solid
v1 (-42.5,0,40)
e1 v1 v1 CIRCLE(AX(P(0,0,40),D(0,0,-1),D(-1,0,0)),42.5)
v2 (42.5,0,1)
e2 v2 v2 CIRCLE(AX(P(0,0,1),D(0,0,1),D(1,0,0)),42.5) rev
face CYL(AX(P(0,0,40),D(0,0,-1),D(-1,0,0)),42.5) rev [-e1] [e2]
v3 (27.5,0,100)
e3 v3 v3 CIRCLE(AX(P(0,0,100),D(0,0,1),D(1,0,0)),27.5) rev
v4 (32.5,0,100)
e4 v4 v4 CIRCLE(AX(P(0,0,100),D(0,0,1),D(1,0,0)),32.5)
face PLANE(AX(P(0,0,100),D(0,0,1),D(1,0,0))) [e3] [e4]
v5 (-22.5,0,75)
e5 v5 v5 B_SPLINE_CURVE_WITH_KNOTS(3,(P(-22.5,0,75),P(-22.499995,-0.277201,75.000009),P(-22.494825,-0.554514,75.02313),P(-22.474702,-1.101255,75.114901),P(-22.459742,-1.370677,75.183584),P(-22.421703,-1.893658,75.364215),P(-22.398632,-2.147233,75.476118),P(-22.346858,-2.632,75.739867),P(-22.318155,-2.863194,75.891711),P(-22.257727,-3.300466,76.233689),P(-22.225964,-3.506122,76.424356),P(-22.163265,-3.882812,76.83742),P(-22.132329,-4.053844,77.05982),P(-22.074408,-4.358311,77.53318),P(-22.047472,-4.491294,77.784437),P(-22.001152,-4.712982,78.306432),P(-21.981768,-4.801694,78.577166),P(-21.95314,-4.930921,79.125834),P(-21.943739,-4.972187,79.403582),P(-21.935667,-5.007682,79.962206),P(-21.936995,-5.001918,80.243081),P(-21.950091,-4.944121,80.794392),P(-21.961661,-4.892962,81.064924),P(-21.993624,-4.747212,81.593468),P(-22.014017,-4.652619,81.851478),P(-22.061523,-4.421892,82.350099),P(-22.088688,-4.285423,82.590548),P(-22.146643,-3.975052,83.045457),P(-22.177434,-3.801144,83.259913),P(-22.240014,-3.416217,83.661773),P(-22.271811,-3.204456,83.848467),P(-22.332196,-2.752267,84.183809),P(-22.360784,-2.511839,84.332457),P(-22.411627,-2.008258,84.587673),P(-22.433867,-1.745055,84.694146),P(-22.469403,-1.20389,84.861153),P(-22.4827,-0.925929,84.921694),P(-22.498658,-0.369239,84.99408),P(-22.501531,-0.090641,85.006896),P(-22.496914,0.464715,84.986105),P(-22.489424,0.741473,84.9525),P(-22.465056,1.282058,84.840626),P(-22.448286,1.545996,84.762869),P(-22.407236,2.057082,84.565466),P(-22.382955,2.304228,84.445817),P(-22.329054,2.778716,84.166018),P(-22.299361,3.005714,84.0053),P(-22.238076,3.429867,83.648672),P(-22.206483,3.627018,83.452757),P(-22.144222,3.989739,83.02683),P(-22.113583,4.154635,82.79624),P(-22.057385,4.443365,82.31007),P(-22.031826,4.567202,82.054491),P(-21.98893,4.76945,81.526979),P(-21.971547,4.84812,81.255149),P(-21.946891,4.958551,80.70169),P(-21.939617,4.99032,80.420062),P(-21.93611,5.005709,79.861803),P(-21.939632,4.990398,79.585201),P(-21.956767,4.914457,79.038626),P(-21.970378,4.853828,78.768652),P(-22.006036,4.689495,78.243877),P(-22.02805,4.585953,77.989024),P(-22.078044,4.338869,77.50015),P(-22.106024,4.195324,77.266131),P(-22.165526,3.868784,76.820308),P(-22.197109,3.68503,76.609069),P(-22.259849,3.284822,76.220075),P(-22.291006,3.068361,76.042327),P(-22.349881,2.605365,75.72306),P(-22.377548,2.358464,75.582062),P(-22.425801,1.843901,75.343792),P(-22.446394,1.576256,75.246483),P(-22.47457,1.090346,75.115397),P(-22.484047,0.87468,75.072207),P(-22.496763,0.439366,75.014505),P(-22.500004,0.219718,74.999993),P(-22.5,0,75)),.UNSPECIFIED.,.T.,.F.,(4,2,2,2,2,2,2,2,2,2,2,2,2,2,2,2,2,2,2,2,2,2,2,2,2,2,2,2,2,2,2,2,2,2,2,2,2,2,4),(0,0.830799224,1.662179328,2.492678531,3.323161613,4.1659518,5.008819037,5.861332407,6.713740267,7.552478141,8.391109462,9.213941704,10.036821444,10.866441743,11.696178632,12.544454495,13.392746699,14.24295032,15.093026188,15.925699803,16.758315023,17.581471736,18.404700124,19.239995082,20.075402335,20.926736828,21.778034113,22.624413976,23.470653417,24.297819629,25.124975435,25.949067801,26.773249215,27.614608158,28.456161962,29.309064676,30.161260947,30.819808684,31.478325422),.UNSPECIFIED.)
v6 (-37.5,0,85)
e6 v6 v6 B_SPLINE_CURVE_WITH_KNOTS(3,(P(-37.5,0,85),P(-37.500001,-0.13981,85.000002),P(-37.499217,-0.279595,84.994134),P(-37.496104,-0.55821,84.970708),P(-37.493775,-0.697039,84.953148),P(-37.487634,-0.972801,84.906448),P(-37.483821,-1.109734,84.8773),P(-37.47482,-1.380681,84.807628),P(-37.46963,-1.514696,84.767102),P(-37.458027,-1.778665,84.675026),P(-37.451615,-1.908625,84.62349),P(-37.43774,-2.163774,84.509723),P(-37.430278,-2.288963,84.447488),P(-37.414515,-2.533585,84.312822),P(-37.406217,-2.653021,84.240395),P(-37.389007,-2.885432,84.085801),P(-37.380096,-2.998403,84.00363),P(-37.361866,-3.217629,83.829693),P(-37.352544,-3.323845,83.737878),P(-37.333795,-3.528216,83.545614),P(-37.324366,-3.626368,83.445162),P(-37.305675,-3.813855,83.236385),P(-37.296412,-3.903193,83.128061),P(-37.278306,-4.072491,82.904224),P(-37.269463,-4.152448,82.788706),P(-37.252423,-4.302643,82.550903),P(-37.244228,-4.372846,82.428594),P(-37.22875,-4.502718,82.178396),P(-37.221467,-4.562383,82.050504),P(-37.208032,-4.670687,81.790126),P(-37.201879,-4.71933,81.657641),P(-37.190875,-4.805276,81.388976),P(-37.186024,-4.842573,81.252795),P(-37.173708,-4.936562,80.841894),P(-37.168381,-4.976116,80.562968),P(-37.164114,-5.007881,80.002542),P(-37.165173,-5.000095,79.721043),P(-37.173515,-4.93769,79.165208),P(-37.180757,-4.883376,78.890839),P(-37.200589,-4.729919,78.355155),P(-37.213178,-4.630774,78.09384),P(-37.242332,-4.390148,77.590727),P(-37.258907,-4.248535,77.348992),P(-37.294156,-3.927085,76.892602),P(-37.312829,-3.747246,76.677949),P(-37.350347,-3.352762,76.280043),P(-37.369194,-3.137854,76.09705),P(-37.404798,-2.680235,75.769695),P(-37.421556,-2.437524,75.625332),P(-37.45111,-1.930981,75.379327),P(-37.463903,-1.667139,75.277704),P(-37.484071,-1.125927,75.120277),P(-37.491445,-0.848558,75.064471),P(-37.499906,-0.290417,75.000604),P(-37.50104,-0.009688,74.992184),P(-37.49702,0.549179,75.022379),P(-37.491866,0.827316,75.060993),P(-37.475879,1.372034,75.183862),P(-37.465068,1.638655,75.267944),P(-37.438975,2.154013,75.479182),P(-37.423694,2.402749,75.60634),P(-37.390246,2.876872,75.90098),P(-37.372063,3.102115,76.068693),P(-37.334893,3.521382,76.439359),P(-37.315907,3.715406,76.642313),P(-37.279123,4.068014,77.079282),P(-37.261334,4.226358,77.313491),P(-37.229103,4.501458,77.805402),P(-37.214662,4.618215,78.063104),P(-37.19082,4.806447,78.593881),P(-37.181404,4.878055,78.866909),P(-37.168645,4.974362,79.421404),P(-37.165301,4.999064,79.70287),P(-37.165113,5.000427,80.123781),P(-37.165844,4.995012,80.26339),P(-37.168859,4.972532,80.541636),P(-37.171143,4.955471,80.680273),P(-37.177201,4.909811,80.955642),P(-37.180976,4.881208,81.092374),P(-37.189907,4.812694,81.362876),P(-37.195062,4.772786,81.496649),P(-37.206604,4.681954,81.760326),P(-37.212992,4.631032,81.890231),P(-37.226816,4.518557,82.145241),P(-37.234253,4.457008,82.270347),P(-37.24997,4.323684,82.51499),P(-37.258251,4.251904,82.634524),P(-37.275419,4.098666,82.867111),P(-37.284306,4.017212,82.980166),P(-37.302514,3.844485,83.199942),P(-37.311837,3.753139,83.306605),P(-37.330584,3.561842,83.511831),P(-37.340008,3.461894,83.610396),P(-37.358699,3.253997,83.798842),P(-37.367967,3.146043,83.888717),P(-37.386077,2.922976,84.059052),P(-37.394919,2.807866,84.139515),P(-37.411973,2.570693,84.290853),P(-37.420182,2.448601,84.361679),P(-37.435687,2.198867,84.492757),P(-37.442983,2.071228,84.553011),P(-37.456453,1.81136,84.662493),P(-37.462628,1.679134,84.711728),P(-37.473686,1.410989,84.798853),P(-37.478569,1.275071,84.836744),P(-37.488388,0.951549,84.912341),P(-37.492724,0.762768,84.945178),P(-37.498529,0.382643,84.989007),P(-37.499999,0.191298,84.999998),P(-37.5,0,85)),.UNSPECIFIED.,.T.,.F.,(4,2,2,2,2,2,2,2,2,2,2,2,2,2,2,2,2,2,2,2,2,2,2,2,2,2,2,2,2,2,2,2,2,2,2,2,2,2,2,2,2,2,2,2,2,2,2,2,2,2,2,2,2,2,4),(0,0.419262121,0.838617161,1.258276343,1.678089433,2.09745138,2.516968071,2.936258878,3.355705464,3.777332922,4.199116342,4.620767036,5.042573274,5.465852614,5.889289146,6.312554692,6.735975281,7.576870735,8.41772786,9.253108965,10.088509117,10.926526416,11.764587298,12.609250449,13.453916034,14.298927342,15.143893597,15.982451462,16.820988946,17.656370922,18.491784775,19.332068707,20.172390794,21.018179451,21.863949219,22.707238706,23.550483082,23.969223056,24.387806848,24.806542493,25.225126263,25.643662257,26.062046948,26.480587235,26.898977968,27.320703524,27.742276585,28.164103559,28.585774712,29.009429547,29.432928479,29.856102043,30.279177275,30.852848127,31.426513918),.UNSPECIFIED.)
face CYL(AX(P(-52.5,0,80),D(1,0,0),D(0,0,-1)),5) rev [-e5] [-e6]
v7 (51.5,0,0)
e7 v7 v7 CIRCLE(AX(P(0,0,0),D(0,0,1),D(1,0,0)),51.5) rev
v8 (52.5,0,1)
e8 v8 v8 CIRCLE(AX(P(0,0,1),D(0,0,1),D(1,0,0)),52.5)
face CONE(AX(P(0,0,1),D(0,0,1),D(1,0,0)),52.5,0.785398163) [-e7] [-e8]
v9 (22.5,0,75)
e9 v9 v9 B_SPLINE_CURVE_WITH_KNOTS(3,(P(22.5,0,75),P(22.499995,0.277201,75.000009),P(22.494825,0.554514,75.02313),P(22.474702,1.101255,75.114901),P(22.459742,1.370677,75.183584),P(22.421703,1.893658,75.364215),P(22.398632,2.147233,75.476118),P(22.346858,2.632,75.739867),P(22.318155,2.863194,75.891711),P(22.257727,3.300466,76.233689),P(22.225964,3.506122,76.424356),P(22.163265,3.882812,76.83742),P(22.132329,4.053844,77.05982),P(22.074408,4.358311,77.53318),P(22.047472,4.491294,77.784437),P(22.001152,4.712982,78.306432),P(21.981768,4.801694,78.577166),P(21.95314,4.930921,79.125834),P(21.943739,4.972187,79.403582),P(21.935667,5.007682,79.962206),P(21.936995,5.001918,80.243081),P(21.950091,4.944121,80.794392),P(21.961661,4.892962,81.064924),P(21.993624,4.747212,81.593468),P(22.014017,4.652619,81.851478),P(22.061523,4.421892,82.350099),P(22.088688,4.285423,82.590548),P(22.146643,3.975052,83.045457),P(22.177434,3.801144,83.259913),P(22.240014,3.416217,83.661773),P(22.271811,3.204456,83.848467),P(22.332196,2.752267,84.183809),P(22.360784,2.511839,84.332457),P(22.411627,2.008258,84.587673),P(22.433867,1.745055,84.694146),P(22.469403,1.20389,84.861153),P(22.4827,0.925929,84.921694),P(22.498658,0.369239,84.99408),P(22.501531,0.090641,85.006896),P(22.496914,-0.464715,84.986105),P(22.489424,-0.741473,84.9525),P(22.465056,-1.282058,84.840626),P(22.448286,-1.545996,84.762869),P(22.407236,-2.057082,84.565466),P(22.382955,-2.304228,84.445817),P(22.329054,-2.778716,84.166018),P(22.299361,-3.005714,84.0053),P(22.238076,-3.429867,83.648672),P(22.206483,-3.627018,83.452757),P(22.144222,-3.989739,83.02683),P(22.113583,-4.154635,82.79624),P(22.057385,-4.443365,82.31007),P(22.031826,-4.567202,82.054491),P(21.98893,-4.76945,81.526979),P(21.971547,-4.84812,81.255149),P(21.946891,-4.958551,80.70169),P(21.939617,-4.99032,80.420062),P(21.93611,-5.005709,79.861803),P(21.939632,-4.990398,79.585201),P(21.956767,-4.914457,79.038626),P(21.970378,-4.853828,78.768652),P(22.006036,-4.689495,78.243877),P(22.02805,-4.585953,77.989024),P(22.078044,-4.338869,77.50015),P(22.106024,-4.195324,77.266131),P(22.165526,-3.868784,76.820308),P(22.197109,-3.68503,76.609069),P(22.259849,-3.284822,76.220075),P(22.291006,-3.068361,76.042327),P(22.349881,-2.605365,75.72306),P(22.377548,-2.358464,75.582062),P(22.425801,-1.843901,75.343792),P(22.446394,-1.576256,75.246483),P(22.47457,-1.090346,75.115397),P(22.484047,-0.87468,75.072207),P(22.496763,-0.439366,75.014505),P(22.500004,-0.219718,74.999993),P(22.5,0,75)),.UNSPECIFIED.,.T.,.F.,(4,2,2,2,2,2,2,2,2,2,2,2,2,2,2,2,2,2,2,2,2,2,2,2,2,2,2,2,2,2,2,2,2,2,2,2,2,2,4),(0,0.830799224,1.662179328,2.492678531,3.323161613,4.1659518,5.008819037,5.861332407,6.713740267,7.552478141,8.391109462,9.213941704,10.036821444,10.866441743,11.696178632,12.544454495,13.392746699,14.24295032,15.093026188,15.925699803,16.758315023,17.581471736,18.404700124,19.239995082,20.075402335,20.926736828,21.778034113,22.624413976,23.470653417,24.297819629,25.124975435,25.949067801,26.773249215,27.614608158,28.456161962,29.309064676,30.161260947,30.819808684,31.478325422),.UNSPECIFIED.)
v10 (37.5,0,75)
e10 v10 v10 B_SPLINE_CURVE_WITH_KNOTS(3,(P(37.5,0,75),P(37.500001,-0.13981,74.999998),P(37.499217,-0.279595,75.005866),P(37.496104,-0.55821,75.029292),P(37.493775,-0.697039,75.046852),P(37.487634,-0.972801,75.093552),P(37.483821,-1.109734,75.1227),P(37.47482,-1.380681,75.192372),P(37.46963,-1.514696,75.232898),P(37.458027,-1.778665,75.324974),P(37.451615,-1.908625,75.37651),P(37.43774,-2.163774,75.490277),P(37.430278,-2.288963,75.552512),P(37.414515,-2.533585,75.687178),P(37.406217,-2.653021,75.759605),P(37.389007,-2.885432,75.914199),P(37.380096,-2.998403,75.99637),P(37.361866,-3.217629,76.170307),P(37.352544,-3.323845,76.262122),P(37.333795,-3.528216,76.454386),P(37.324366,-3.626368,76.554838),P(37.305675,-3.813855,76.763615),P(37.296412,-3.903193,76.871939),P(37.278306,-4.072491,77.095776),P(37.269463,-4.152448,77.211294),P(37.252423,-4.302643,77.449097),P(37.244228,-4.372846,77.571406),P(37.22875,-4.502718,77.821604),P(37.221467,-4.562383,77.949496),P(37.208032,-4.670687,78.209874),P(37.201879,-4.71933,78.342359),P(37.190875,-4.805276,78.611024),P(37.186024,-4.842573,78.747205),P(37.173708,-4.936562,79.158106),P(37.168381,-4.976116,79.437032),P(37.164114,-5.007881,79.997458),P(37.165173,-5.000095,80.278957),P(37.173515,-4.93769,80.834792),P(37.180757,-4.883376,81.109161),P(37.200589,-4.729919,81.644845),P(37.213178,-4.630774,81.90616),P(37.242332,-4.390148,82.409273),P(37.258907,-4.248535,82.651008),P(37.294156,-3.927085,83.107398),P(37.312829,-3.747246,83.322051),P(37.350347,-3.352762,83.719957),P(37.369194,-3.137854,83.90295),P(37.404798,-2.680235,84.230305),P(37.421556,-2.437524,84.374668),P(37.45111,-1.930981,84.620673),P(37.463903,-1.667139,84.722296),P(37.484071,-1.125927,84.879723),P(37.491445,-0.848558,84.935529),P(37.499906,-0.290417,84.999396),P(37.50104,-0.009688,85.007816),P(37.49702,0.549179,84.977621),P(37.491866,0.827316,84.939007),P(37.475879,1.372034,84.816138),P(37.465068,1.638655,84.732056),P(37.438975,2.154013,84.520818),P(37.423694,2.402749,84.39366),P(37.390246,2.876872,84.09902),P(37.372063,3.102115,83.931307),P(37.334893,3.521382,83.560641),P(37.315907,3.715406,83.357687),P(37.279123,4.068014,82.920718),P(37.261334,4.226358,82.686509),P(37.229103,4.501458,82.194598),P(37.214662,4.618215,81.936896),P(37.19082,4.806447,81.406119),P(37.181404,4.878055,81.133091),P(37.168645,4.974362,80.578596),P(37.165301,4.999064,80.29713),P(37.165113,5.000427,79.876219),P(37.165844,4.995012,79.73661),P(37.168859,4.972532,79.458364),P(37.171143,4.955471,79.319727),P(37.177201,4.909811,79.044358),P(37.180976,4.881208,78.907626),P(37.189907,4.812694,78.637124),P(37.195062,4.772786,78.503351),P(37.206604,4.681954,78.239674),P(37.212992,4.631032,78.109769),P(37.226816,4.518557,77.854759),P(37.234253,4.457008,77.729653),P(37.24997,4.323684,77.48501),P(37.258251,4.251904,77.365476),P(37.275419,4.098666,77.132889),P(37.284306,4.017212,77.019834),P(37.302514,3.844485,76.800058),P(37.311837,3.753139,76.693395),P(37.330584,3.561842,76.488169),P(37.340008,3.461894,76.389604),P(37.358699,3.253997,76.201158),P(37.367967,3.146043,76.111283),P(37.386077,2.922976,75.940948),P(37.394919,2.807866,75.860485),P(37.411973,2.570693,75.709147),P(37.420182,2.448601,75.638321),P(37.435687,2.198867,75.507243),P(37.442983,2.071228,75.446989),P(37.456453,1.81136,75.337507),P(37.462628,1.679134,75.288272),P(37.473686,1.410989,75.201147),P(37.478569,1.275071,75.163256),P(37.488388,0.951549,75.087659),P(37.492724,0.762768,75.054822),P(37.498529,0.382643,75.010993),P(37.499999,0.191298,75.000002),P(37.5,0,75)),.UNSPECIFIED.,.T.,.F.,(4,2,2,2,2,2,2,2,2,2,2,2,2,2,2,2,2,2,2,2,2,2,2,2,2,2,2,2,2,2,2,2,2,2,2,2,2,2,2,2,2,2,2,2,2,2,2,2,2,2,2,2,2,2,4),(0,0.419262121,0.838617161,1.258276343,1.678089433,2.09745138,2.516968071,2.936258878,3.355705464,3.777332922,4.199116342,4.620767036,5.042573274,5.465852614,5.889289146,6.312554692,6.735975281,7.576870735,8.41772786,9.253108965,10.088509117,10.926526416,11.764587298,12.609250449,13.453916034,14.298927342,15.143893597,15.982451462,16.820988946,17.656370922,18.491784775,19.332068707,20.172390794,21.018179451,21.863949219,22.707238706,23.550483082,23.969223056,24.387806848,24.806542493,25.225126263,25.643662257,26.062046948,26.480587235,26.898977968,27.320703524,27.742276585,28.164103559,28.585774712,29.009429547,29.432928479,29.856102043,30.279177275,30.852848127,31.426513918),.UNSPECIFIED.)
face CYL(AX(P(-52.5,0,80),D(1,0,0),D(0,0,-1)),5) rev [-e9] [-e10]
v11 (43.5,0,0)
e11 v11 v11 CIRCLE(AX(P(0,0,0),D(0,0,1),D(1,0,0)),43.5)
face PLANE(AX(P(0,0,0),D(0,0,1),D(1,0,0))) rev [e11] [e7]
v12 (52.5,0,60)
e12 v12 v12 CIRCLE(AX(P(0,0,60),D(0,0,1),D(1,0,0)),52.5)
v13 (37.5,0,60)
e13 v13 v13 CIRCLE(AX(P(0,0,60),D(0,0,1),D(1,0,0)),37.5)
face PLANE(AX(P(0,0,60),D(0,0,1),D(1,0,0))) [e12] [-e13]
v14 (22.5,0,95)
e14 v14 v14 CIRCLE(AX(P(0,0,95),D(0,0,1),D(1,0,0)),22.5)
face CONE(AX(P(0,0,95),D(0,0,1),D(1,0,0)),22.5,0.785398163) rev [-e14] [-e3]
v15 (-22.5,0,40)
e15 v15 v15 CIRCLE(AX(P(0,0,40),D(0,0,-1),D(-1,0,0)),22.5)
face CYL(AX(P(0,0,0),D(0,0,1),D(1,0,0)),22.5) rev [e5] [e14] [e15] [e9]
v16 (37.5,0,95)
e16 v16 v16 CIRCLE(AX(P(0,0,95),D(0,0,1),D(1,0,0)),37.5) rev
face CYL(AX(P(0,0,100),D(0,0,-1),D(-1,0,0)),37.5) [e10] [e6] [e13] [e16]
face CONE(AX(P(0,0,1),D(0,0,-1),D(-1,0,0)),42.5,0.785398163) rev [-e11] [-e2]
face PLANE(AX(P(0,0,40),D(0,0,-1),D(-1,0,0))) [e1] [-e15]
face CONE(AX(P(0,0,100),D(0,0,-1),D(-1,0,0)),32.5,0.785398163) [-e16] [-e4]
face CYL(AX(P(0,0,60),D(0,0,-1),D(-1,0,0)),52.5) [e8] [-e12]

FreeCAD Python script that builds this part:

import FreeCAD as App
import Part
import Sketcher
from FreeCAD import Vector
Q = App.Units.Quantity


def edges_at(feature, points):
    """Names of the edges that pass closest to the given points."""
    edges = feature.Shape.Edges
    near = lambda p: min(range(len(edges)), key=lambda i: edges[i].distToShape(Part.Vertex(*p))[0])
    return sorted({f"Edge{near(p) + 1}" for p in points})

doc = App.newDocument("Part")
params = doc.addObject("Spreadsheet::Sheet", "Params")
for row, (alias, value) in enumerate([
    ("sketch1_diameter", "105 mm"),
    ("pad1_length", "60 mm"),
    ("sketch2_diameter", "75 mm"),
    ("pad2_length", "40 mm"),
    ("sketch3_diameter", "85 mm"),
    ("pocket1_length", "40 mm"),
    ("sketch4_diameter", "45 mm"),
    ("chamfer_size", "1 mm"),
    ("sketch5_diameter", "10 mm"),
    ("chamfer2_size", "5 mm"),
], start=1):
    params.set(f"A{row}", alias)
    params.set(f"B{row}", "=" + value)
    params.setAlias(f"B{row}", alias)

body = doc.addObject("PartDesign::Body", "Body")

sketch1 = doc.addObject("Sketcher::SketchObject", "Sketch")
body.addObject(sketch1)
sketch1.AttachmentSupport = (doc.XY_Plane, [""])
sketch1.MapMode = "FlatFace"
sketch1.addGeometry(Part.Circle(Vector(0, 0, 0), Vector(0, 0, 1), 52), False)
sketch1.addConstraint([
    Sketcher.Constraint("Coincident", 0, 3, -1, 1),
    Sketcher.Constraint("Diameter", 0, Q("105 mm")),
])
sketch1.setExpression("Constraints[1]", "Params.sketch1_diameter")
pad1 = doc.addObject("PartDesign::Pad", "Pad")
body.addObject(pad1)
pad1.Profile = sketch1
pad1.setExpression("Length", "Params.pad1_length")

sketch2 = doc.addObject("Sketcher::SketchObject", "Sketch001")
body.addObject(sketch2)
sketch2.AttachmentSupport = (doc.XY_Plane, [""])
sketch2.MapMode = "FlatFace"
sketch2.AttachmentOffset = App.Placement(Vector(0, 0, 60), App.Rotation())
sketch2.addGeometry(Part.Circle(Vector(0, 0, 0), Vector(0, 0, 1), 38), False)
sketch2.addConstraint([
    Sketcher.Constraint("Coincident", 0, 3, -1, 1),
    Sketcher.Constraint("Diameter", 0, Q("75 mm")),
])
sketch2.setExpression("Constraints[1]", "Params.sketch2_diameter")
pad2 = doc.addObject("PartDesign::Pad", "Pad001")
body.addObject(pad2)
pad2.Profile = sketch2
pad2.setExpression("Length", "Params.pad2_length")

sketch3 = doc.addObject("Sketcher::SketchObject", "Sketch002")
body.addObject(sketch3)
sketch3.AttachmentSupport = (doc.XY_Plane, [""])
sketch3.MapMode = "FlatFace"
sketch3.addGeometry(Part.Circle(Vector(0, 0, 0), Vector(0, 0, 1), 42), False)
sketch3.addConstraint([
    Sketcher.Constraint("Coincident", 0, 3, -1, 1),
    Sketcher.Constraint("Diameter", 0, Q("85 mm")),
])
sketch3.setExpression("Constraints[1]", "Params.sketch3_diameter")
pocket1 = doc.addObject("PartDesign::Pocket", "Pocket")
body.addObject(pocket1)
pocket1.Profile = sketch3
pocket1.setExpression("Length", "Params.pocket1_length")
pocket1.Reversed = True

sketch4 = doc.addObject("Sketcher::SketchObject", "Sketch003")
body.addObject(sketch4)
sketch4.AttachmentSupport = (doc.XY_Plane, [""])
sketch4.MapMode = "FlatFace"
sketch4.AttachmentOffset = App.Placement(Vector(0, 0, 100), App.Rotation())
sketch4.addGeometry(Part.Circle(Vector(0, 0, 0), Vector(0, 0, 1), 22), False)
sketch4.addConstraint([
    Sketcher.Constraint("Coincident", 0, 3, -1, 1),
    Sketcher.Constraint("Diameter", 0, Q("45 mm")),
])
sketch4.setExpression("Constraints[1]", "Params.sketch4_diameter")
pocket2 = doc.addObject("PartDesign::Pocket", "Pocket001")
body.addObject(pocket2)
pocket2.Profile = sketch4
pocket2.Type = "ThroughAll"
doc.recompute()

chamfer = doc.addObject("PartDesign::Chamfer", "Chamfer")
body.addObject(chamfer)
chamfer.Base = (pocket2, edges_at(pocket2, [(42.5, 0, 0), (-52.5, 0, 0)]))
chamfer.setExpression("Size", "Params.chamfer_size")

sketch5 = doc.addObject("Sketcher::SketchObject", "Sketch004")
body.addObject(sketch5)
sketch5.AttachmentSupport = (doc.YZ_Plane, [""])
sketch5.MapMode = "FlatFace"
sketch5.addGeometry(Part.Circle(Vector(0, 80, 0), Vector(0, 0, 1), 5), False)
sketch5.addConstraint([
    Sketcher.Constraint("PointOnObject", 0, 3, -2),
    Sketcher.Constraint("Diameter", 0, Q("10 mm")),
    Sketcher.Constraint("DistanceY", -1, 1, 0, 3, Q("80 mm")),
])
sketch5.setExpression("Constraints[1]", "Params.sketch5_diameter")
pocket3 = doc.addObject("PartDesign::Pocket", "Pocket002")
body.addObject(pocket3)
pocket3.Profile = sketch5
pocket3.Type = "ThroughAll"
pocket3.Midplane = True
doc.recompute()

chamfer2 = doc.addObject("PartDesign::Chamfer", "Chamfer001")
body.addObject(chamfer2)
chamfer2.Base = (pocket3, edges_at(pocket3, [(-22.5, 0, 100), (-37.5, 0, 100)]))
chamfer2.setExpression("Size", "Params.chamfer2_size")

doc.recompute()
